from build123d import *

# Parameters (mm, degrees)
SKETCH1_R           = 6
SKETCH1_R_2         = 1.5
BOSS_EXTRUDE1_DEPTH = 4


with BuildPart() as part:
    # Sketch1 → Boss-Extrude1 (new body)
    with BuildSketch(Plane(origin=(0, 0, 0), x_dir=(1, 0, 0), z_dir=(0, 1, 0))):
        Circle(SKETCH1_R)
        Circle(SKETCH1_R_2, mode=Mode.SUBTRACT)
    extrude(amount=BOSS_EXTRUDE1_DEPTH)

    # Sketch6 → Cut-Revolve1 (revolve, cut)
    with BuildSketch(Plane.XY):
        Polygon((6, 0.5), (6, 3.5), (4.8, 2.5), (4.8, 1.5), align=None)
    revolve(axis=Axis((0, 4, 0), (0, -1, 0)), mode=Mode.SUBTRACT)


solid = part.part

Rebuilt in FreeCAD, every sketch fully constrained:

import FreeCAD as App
import Part
import Sketcher
Q = App.Units.Quantity

doc = App.newDocument("Part")
body = doc.addObject("PartDesign::Body", "Body")

sketch1 = body.newObject("Sketcher::SketchObject", "Sketch")
sketch1.AttachmentSupport = (doc.getObject("XZ_Plane"), [""])
sketch1.MapMode = "FlatFace"
sketch1.addGeometry([
    Part.Circle(App.Vector(0, 0, 0), App.Vector(0, 0, 1), 6),
    Part.Circle(App.Vector(0, 0, 0), App.Vector(0, 0, 1), 1.5),
], False)
sketch1.addConstraint([
    Sketcher.Constraint("Coincident", 0, 3, -1, 1),
    Sketcher.Constraint("Coincident", 1, 3, -1, 1),
    Sketcher.Constraint("Diameter", 0, Q("12 mm")),
    Sketcher.Constraint("Diameter", 1, Q("3 mm")),
])
pad1 = body.newObject("PartDesign::Pad", "Pad")
pad1.Profile = sketch1
pad1.Length = 4
pad1.Reversed = True

sketch2 = body.newObject("Sketcher::SketchObject", "Sketch001")
sketch2.AttachmentSupport = (doc.getObject("XY_Plane"), [""])
sketch2.MapMode = "FlatFace"
sketch2.addGeometry([
    Part.LineSegment(App.Vector(6, 0.5, 0), App.Vector(6, 3.5, 0)),
    Part.LineSegment(App.Vector(6, 3.5, 0), App.Vector(4.8, 2.5, 0)),
    Part.LineSegment(App.Vector(4.8, 2.5, 0), App.Vector(4.8, 1.5, 0)),
    Part.LineSegment(App.Vector(4.8, 1.5, 0), App.Vector(6, 0.5, 0)),
], False)
sketch2.addConstraint([
    Sketcher.Constraint("Coincident", 0, 2, 1, 1),
    Sketcher.Constraint("Coincident", 1, 2, 2, 1),
    Sketcher.Constraint("Coincident", 2, 2, 3, 1),
    Sketcher.Constraint("Coincident", 3, 2, 0, 1),
    Sketcher.Constraint("Vertical", 0),
    Sketcher.Constraint("Vertical", 2),
    Sketcher.Constraint("Equal", 1, 3),
    Sketcher.Constraint("DistanceY", 0, 1, 0, 2, Q("3 mm")),
    Sketcher.Constraint("DistanceY", 2, 2, 2, 1, Q("1 mm")),
    Sketcher.Constraint("DistanceX", -1, 1, 0, 2, Q("6 mm")),
    Sketcher.Constraint("DistanceY", -1, 1, 0, 2, Q("3.5 mm")),
    Sketcher.Constraint("DistanceX", -1, 1, 1, 2, Q("4.8 mm")),
])
groove = body.newObject("PartDesign::Groove", "Groove")
groove.Profile = sketch2
groove.ReferenceAxis = (sketch2, ["V_Axis"])
groove.Angle = 360

doc.recompute()
